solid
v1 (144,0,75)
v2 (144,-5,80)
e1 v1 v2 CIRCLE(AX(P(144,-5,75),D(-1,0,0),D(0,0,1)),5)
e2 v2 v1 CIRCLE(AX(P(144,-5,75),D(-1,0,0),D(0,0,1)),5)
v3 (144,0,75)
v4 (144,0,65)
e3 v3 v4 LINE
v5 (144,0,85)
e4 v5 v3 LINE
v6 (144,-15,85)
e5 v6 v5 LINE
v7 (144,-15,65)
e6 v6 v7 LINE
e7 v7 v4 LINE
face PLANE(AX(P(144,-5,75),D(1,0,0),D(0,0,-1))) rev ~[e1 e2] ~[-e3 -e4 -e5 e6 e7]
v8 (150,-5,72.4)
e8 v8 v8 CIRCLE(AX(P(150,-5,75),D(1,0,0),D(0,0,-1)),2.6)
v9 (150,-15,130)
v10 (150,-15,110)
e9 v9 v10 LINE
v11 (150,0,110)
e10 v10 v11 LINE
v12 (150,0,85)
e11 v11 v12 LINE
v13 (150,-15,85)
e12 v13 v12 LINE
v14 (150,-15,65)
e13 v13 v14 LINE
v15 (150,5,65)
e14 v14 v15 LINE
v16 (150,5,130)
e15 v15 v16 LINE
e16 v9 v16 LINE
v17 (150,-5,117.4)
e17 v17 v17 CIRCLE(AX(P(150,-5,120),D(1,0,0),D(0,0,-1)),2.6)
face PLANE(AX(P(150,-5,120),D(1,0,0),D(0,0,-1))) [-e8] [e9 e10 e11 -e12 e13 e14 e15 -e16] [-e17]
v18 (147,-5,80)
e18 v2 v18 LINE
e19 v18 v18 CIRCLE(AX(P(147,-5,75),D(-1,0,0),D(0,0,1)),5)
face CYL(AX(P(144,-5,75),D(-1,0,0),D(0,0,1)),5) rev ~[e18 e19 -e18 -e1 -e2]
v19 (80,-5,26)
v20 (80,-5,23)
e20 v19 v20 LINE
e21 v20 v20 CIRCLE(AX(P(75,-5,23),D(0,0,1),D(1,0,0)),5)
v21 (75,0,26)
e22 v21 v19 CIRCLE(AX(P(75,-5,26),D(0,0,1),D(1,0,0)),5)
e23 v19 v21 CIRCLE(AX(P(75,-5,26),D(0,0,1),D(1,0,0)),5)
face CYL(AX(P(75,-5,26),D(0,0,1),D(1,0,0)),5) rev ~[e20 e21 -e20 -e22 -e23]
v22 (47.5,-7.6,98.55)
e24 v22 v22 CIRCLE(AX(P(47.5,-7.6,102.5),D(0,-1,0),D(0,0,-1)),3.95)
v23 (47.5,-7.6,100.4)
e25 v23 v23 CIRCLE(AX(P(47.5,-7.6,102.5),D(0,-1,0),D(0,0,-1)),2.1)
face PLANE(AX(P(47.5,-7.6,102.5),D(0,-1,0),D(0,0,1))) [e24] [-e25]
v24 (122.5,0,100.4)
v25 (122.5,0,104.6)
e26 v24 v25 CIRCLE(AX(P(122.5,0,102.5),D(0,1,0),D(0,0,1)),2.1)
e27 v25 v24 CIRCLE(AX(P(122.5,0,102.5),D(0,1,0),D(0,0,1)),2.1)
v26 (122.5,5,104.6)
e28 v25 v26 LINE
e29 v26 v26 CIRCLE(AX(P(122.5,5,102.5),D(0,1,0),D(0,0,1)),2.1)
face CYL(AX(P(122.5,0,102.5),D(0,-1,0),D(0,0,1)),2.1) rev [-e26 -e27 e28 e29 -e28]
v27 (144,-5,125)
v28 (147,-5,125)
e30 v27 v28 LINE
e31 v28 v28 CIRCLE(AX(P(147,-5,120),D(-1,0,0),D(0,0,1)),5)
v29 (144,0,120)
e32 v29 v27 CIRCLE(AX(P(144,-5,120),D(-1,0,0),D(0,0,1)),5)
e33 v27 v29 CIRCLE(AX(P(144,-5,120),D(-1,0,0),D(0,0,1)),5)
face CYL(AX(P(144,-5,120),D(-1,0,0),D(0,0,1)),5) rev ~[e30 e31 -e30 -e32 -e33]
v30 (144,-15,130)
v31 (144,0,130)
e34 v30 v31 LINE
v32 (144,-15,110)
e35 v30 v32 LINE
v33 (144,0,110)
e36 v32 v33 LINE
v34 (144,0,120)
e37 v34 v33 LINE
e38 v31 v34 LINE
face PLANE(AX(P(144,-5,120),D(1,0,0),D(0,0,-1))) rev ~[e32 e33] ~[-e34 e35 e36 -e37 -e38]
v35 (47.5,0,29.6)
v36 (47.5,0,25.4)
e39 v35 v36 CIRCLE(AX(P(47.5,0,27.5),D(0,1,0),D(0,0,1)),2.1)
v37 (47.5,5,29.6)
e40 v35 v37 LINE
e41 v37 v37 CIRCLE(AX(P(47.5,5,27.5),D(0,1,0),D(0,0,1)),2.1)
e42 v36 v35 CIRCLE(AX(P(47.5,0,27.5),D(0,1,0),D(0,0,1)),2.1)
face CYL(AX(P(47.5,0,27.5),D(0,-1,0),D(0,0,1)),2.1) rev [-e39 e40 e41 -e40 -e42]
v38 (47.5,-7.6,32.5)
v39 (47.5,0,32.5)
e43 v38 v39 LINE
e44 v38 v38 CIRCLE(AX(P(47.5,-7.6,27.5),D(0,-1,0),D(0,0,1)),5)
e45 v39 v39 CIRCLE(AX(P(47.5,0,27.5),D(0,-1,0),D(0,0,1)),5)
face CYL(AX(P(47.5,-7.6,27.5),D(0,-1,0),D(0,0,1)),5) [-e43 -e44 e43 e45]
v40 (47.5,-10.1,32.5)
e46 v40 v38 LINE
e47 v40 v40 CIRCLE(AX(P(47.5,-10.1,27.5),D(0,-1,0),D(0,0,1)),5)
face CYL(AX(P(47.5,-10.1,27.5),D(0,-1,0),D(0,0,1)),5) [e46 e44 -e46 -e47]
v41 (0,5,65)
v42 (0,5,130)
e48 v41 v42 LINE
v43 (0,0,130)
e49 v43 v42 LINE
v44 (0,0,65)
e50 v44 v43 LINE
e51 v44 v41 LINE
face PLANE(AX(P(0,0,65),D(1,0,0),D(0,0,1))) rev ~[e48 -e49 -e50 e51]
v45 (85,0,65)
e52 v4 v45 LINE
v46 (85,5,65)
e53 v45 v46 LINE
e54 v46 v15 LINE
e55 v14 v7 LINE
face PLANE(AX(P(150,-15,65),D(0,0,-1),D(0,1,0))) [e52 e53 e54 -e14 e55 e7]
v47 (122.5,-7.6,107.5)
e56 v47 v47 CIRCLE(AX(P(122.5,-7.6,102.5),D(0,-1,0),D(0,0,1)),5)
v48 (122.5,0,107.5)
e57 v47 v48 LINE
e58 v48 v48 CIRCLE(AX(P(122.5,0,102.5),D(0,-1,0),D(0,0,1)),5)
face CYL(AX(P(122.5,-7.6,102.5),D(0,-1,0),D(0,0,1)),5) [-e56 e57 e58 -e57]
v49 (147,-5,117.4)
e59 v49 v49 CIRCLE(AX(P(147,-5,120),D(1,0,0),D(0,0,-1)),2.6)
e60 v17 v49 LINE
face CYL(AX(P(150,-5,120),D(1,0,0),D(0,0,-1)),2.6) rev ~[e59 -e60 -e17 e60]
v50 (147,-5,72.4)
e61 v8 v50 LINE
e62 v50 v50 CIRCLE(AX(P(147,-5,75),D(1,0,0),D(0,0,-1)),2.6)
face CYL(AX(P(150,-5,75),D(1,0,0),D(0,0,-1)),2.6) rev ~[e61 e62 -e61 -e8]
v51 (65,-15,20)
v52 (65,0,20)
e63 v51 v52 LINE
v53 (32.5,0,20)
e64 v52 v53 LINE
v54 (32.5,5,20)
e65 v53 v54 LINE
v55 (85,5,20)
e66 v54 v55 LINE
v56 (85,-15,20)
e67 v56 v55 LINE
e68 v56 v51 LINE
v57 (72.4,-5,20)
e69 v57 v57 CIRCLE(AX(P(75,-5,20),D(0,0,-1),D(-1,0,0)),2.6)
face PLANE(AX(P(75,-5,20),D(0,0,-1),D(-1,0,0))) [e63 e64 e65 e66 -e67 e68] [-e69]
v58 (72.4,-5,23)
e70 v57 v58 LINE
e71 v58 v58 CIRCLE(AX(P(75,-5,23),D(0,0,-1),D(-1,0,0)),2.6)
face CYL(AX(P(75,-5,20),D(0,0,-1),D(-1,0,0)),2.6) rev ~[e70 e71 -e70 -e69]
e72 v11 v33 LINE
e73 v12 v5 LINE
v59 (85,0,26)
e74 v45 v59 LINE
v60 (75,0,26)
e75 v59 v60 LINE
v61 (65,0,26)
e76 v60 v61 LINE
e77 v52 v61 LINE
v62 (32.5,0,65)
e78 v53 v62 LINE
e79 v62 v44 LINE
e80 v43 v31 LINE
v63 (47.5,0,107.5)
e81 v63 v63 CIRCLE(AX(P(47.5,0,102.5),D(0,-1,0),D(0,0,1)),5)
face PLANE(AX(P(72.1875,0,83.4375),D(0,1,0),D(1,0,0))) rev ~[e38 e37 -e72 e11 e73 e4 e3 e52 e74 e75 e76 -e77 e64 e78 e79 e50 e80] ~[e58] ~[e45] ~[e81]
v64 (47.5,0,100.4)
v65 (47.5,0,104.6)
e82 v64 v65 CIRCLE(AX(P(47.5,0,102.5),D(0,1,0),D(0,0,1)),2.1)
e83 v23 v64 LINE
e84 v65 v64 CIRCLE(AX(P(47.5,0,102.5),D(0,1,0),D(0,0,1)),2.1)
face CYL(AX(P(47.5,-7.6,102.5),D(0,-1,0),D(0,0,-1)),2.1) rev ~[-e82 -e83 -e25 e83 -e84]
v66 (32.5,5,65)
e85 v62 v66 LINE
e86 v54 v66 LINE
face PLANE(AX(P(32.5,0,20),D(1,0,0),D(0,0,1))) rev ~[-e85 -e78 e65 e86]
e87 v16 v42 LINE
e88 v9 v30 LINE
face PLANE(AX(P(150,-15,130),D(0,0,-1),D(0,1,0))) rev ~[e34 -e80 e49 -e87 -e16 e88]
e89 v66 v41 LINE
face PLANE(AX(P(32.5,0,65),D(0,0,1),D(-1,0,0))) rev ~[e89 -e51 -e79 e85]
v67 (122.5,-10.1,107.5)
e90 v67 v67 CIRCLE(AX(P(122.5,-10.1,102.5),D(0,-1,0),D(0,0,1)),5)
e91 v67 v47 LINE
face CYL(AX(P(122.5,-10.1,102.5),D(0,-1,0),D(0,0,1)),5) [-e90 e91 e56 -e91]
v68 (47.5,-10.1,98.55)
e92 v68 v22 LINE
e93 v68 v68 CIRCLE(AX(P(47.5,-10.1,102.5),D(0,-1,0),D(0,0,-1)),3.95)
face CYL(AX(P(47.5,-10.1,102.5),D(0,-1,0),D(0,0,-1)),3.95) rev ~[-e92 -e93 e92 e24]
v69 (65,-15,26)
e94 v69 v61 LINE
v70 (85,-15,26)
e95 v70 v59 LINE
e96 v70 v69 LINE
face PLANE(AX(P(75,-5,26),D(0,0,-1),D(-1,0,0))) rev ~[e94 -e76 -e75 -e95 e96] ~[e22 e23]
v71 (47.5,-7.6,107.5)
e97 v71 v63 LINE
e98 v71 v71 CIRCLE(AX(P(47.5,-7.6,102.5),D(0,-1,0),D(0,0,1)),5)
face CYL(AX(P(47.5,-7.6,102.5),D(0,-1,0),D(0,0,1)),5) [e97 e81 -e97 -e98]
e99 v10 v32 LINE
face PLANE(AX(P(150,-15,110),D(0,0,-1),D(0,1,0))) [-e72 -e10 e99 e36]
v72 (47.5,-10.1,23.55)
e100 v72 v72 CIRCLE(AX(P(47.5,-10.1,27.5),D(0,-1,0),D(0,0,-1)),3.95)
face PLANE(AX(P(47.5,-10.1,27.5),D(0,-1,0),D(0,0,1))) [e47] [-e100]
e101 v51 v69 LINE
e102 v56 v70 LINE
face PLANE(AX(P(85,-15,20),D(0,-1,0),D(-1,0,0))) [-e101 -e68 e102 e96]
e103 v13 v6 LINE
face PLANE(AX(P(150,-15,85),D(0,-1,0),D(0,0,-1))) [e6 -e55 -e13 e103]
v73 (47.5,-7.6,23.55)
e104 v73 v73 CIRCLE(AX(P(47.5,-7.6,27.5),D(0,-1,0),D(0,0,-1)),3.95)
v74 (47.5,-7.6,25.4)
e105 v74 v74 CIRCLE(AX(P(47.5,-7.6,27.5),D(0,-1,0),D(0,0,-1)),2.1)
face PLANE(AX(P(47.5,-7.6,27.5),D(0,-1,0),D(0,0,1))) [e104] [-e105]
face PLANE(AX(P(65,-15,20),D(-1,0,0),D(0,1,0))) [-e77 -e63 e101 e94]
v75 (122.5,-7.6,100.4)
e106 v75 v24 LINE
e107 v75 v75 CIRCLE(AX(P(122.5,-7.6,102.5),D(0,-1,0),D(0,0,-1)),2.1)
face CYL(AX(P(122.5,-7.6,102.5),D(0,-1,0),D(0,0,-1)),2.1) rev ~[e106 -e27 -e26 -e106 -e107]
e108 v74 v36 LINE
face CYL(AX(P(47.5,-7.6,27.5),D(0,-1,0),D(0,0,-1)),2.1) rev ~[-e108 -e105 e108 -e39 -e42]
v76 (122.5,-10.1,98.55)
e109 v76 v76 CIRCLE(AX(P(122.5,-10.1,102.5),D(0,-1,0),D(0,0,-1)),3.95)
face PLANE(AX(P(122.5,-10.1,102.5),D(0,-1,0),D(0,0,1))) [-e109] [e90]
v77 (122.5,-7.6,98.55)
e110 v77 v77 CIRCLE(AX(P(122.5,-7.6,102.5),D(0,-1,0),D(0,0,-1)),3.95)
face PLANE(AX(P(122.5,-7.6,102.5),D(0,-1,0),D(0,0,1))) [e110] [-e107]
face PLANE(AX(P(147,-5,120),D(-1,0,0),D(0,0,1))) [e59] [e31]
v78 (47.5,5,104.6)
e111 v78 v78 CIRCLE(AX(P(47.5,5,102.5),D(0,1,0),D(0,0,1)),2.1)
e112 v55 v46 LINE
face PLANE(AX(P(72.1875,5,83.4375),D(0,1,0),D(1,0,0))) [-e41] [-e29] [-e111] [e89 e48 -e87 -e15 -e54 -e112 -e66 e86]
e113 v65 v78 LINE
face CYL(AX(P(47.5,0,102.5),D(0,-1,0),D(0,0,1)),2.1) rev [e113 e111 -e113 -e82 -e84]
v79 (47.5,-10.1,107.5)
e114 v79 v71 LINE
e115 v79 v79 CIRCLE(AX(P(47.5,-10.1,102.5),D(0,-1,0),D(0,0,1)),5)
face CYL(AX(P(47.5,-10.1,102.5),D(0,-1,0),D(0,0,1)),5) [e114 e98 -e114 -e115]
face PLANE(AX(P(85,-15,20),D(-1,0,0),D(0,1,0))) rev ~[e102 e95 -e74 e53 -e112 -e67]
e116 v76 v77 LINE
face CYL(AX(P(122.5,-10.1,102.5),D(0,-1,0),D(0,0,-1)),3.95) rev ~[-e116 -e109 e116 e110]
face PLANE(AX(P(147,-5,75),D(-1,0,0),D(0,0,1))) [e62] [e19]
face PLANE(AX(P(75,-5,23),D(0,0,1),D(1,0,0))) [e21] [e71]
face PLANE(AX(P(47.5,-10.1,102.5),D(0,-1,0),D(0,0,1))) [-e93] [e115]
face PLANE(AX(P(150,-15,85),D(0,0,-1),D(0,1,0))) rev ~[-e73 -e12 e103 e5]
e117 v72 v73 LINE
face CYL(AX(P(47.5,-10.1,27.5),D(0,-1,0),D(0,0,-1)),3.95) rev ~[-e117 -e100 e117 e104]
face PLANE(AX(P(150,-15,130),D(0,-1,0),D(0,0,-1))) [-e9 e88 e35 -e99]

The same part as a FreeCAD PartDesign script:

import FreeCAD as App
import Part
import Sketcher
Q = App.Units.Quantity

doc = App.newDocument("Part")
body = doc.addObject("PartDesign::Body", "Body")

# Sketch on XZ plane
sketch1 = doc.addObject("Sketcher::SketchObject", "Sketch")
body.addObject(sketch1)
sketch1.AttachmentSupport = (doc.XZ_Plane, [""])
sketch1.MapMode = "FlatFace"
sketch1.addGeometry([
    Part.LineSegment(App.Vector(0, 65, 0), App.Vector(0, 130, 0)),  # 0
    Part.LineSegment(App.Vector(0, 130, 0), App.Vector(150, 130, 0)),  # 1
    Part.LineSegment(App.Vector(150, 130, 0), App.Vector(150, 65, 0)),  # 2
    Part.LineSegment(App.Vector(150, 65, 0), App.Vector(85, 65, 0)),  # 3
    Part.LineSegment(App.Vector(85, 65, 0), App.Vector(85, 20, 0)),  # 4
    Part.LineSegment(App.Vector(85, 20, 0), App.Vector(32.5, 20, 0)),  # 5
    Part.LineSegment(App.Vector(32.5, 20, 0), App.Vector(32.5, 65, 0)),  # 6
    Part.LineSegment(App.Vector(32.5, 65, 0), App.Vector(0, 65, 0)),  # 7
    Part.Circle(App.Vector(47.5, 102.5, 0), App.Vector(0, 0, 1), 2.1),  # 8
    Part.Circle(App.Vector(122.5, 102.5, 0), App.Vector(0, 0, 1), 2.1),  # 9
    Part.Circle(App.Vector(47.5, 27.5, 0), App.Vector(0, 0, 1), 2.1),  # 10
], False)
sketch1.addConstraint([
    Sketcher.Constraint("Coincident", 0, 2, 1, 1),
    Sketcher.Constraint("Coincident", 1, 2, 2, 1),
    Sketcher.Constraint("Coincident", 2, 2, 3, 1),
    Sketcher.Constraint("Coincident", 3, 2, 4, 1),
    Sketcher.Constraint("Coincident", 4, 2, 5, 1),
    Sketcher.Constraint("Coincident", 5, 2, 6, 1),
    Sketcher.Constraint("Coincident", 6, 2, 7, 1),
    Sketcher.Constraint("Coincident", 7, 2, 0, 1),
    Sketcher.Constraint("Vertical", 0),
    Sketcher.Constraint("Horizontal", 1),
    Sketcher.Constraint("Vertical", 2),
    Sketcher.Constraint("Horizontal", 3),
    Sketcher.Constraint("Vertical", 4),
    Sketcher.Constraint("Horizontal", 5),
    Sketcher.Constraint("Vertical", 6),
    Sketcher.Constraint("Horizontal", 7),
    Sketcher.Constraint("Equal", 8, 9),
    Sketcher.Constraint("Equal", 9, 10),
    Sketcher.Constraint("PointOnObject", 0, 2, -2),
    Sketcher.Constraint("Horizontal", 8, 3, 9, 3),
    Sketcher.Constraint("Horizontal", 3, 2, 6, 2),
    Sketcher.Constraint("Vertical", 8, 3, 10, 3),
    Sketcher.Constraint("Equal", 3, 0),
    Sketcher.Constraint("Diameter", 8, Q("4.2 mm")),
    Sketcher.Constraint("DistanceX", 1, 1, 1, 2, Q("150 mm")),
    Sketcher.Constraint("DistanceX", 3, 2, 3, 1, Q("65 mm")),
    Sketcher.Constraint("DistanceY", 4, 2, 4, 1, Q("45 mm")),
    Sketcher.Constraint("DistanceX", 5, 2, 5, 1, Q("52.5 mm")),
    Sketcher.Constraint("DistanceY", -1, 1, 0, 2, Q("130 mm")),
    Sketcher.Constraint("DistanceX", 8, 3, 9, 3, Q("75 mm")),
    Sketcher.Constraint("DistanceY", 10, 3, 8, 3, Q("75 mm")),
    Sketcher.Constraint("DistanceX", 5, 2, 10, 3, Q("15 mm")),
    Sketcher.Constraint("DistanceY", -1, 1, 8, 3, Q("102.5 mm")),
])
pad1 = doc.addObject("PartDesign::Pad", "Pad")
body.addObject(pad1)
pad1.Profile = sketch1
pad1.Length = 5
pad1.Reversed = True

# Sketch on YZ plane
sketch2 = doc.addObject("Sketcher::SketchObject", "Sketch001")
body.addObject(sketch2)
sketch2.AttachmentSupport = (doc.YZ_Plane, [""])
sketch2.MapMode = "FlatFace"
sketch2.AttachmentOffset = App.Placement(App.Vector(0, 0, 150), App.Rotation())
sketch2.addGeometry([
    Part.LineSegment(App.Vector(5, 85, 0), App.Vector(-15, 85, 0)),  # 0
    Part.LineSegment(App.Vector(-15, 85, 0), App.Vector(-15, 65, 0)),  # 1
    Part.LineSegment(App.Vector(-15, 65, 0), App.Vector(5, 65, 0)),  # 2
    Part.LineSegment(App.Vector(5, 65, 0), App.Vector(5, 85, 0)),  # 3
    Part.Circle(App.Vector(-5, 75, 0), App.Vector(0, 0, 1), 2.6),  # 4
], False)
sketch2.addConstraint([
    Sketcher.Constraint("Coincident", 0, 2, 1, 1),
    Sketcher.Constraint("Coincident", 1, 2, 2, 1),
    Sketcher.Constraint("Coincident", 2, 2, 3, 1),
    Sketcher.Constraint("Coincident", 3, 2, 0, 1),
    Sketcher.Constraint("Horizontal", 0),
    Sketcher.Constraint("Vertical", 1),
    Sketcher.Constraint("Horizontal", 2),
    Sketcher.Constraint("Vertical", 3),
    Sketcher.Constraint("Equal", 2, 1),
    Sketcher.Constraint("Diameter", 4, Q("5.2 mm")),
    Sketcher.Constraint("DistanceX", 0, 2, 0, 1, Q("20 mm")),
    Sketcher.Constraint("DistanceX", 4, 3, -1, 1, Q("5 mm")),
    Sketcher.Constraint("DistanceY", -1, 1, 4, 3, Q("75 mm")),
    Sketcher.Constraint("DistanceX", 0, 2, -1, 1, Q("15 mm")),
    Sketcher.Constraint("DistanceY", -1, 1, 0, 2, Q("85 mm")),
])
pad2 = doc.addObject("PartDesign::Pad", "Pad001")
body.addObject(pad2)
pad2.Profile = sketch2
pad2.Length = 6
pad2.Reversed = True

# Sketch on YZ plane
sketch3 = doc.addObject("Sketcher::SketchObject", "Sketch002")
body.addObject(sketch3)
sketch3.AttachmentSupport = (doc.YZ_Plane, [""])
sketch3.MapMode = "FlatFace"
sketch3.AttachmentOffset = App.Placement(App.Vector(0, 0, 144), App.Rotation())
sketch3.addGeometry(Part.Circle(App.Vector(-5, 75, 0), App.Vector(0, 0, 1), 5), False)
sketch3.addConstraint([
    Sketcher.Constraint("Diameter", 0, Q("10 mm")),
    Sketcher.Constraint("DistanceX", 0, 3, -1, 1, Q("5 mm")),
    Sketcher.Constraint("DistanceY", -1, 1, 0, 3, Q("75 mm")),
])
pocket1 = doc.addObject("PartDesign::Pocket", "Pocket")
body.addObject(pocket1)
pocket1.Profile = sketch3
pocket1.Length = 3
pocket1.Reversed = True

# Sketch on XY plane
sketch4 = doc.addObject("Sketcher::SketchObject", "Sketch003")
body.addObject(sketch4)
sketch4.AttachmentSupport = (doc.XY_Plane, [""])
sketch4.MapMode = "FlatFace"
sketch4.AttachmentOffset = App.Placement(App.Vector(0, 0, 20), App.Rotation())
sketch4.addGeometry([
    Part.LineSegment(App.Vector(85, 5, 0), App.Vector(85, -15, 0)),  # 0
    Part.LineSegment(App.Vector(85, -15, 0), App.Vector(65, -15, 0)),  # 1
    Part.LineSegment(App.Vector(65, -15, 0), App.Vector(65, 5, 0)),  # 2
    Part.LineSegment(App.Vector(65, 5, 0), App.Vector(85, 5, 0)),  # 3
    Part.Circle(App.Vector(75, -5, 0), App.Vector(0, 0, 1), 2.6),  # 4
], False)
sketch4.addConstraint([
    Sketcher.Constraint("Coincident", 0, 2, 1, 1),
    Sketcher.Constraint("Coincident", 1, 2, 2, 1),
    Sketcher.Constraint("Coincident", 2, 2, 3, 1),
    Sketcher.Constraint("Coincident", 3, 2, 0, 1),
    Sketcher.Constraint("Vertical", 0),
    Sketcher.Constraint("Horizontal", 1),
    Sketcher.Constraint("Vertical", 2),
    Sketcher.Constraint("Horizontal", 3),
    Sketcher.Constraint("Equal", 3, 0),
    Sketcher.Constraint("Diameter", 4, Q("5.2 mm")),
    Sketcher.Constraint("DistanceX", 1, 2, 1, 1, Q("20 mm")),
    Sketcher.Constraint("DistanceX", -1, 1, 4, 3, Q("75 mm")),
    Sketcher.Constraint("DistanceY", 4, 3, -1, 1, Q("5 mm")),
    Sketcher.Constraint("DistanceX", -1, 1, 0, 2, Q("85 mm")),
    Sketcher.Constraint("DistanceY", 0, 2, -1, 1, Q("15 mm")),
])
pad3 = doc.addObject("PartDesign::Pad", "Pad002")
body.addObject(pad3)
pad3.Profile = sketch4
pad3.Length = 6

# Sketch on XY plane
sketch5 = doc.addObject("Sketcher::SketchObject", "Sketch004")
body.addObject(sketch5)
sketch5.AttachmentSupport = (doc.XY_Plane, [""])
sketch5.MapMode = "FlatFace"
sketch5.AttachmentOffset = App.Placement(App.Vector(0, 0, 26), App.Rotation())
sketch5.addGeometry(Part.Circle(App.Vector(75, -5, 0), App.Vector(0, 0, 1), 5), False)
sketch5.addConstraint([
    Sketcher.Constraint("Diameter", 0, Q("10 mm")),
    Sketcher.Constraint("DistanceX", -1, 1, 0, 3, Q("75 mm")),
    Sketcher.Constraint("DistanceY", 0, 3, -1, 1, Q("5 mm")),
])
pocket2 = doc.addObject("PartDesign::Pocket", "Pocket001")
body.addObject(pocket2)
pocket2.Profile = sketch5
pocket2.Length = 3

# Sketch on YZ plane
sketch6 = doc.addObject("Sketcher::SketchObject", "Sketch005")
body.addObject(sketch6)
sketch6.AttachmentSupport = (doc.YZ_Plane, [""])
sketch6.MapMode = "FlatFace"
sketch6.AttachmentOffset = App.Placement(App.Vector(0, 0, 150), App.Rotation())
sketch6.addGeometry([
    Part.LineSegment(App.Vector(5, 130, 0), App.Vector(-15, 130, 0)),  # 0
    Part.LineSegment(App.Vector(-15, 130, 0), App.Vector(-15, 110, 0)),  # 1
    Part.LineSegment(App.Vector(-15, 110, 0), App.Vector(5, 110, 0)),  # 2
    Part.LineSegment(App.Vector(5, 110, 0), App.Vector(5, 130, 0)),  # 3
    Part.Circle(App.Vector(-5, 120, 0), App.Vector(0, 0, 1), 2.6),  # 4
], False)
sketch6.addConstraint([
    Sketcher.Constraint("Coincident", 0, 2, 1, 1),
    Sketcher.Constraint("Coincident", 1, 2, 2, 1),
    Sketcher.Constraint("Coincident", 2, 2, 3, 1),
    Sketcher.Constraint("Coincident", 3, 2, 0, 1),
    Sketcher.Constraint("Horizontal", 0),
    Sketcher.Constraint("Vertical", 1),
    Sketcher.Constraint("Horizontal", 2),
    Sketcher.Constraint("Vertical", 3),
    Sketcher.Constraint("Equal", 2, 1),
    Sketcher.Constraint("Diameter", 4, Q("5.2 mm")),
    Sketcher.Constraint("DistanceX", 0, 2, 0, 1, Q("20 mm")),
    Sketcher.Constraint("DistanceX", 4, 3, -1, 1, Q("5 mm")),
    Sketcher.Constraint("DistanceY", -1, 1, 4, 3, Q("120 mm")),
    Sketcher.Constraint("DistanceX", 0, 2, -1, 1, Q("15 mm")),
    Sketcher.Constraint("DistanceY", -1, 1, 0, 2, Q("130 mm")),
])
pad4 = doc.addObject("PartDesign::Pad", "Pad003")
body.addObject(pad4)
pad4.Profile = sketch6
pad4.Length = 6
pad4.Reversed = True

# Sketch on YZ plane
sketch7 = doc.addObject("Sketcher::SketchObject", "Sketch006")
body.addObject(sketch7)
sketch7.AttachmentSupport = (doc.YZ_Plane, [""])
sketch7.MapMode = "FlatFace"
sketch7.AttachmentOffset = App.Placement(App.Vector(0, 0, 144), App.Rotation())
sketch7.addGeometry(Part.Circle(App.Vector(-5, 120, 0), App.Vector(0, 0, 1), 5), False)
sketch7.addConstraint([
    Sketcher.Constraint("Diameter", 0, Q("10 mm")),
    Sketcher.Constraint("DistanceX", 0, 3, -1, 1, Q("5 mm")),
    Sketcher.Constraint("DistanceY", -1, 1, 0, 3, Q("120 mm")),
])
pocket3 = doc.addObject("PartDesign::Pocket", "Pocket002")
body.addObject(pocket3)
pocket3.Profile = sketch7
pocket3.Length = 3
pocket3.Reversed = True

# Sketch on XZ plane
sketch8 = doc.addObject("Sketcher::SketchObject", "Sketch007")
body.addObject(sketch8)
sketch8.AttachmentSupport = (doc.XZ_Plane, [""])
sketch8.MapMode = "FlatFace"
sketch8.AttachmentOffset = App.Placement(App.Vector(0, 0, 7.6), App.Rotation())
sketch8.addGeometry([
    Part.Circle(App.Vector(47.5, 102.5, 0), App.Vector(0, 0, 1), 5),  # 0
    Part.Circle(App.Vector(47.5, 102.5, 0), App.Vector(0, 0, 1), 2.1),  # 1
    Part.Circle(App.Vector(122.5, 102.5, 0), App.Vector(0, 0, 1), 5),  # 2
    Part.Circle(App.Vector(122.5, 102.5, 0), App.Vector(0, 0, 1), 2.1),  # 3
    Part.Circle(App.Vector(47.5, 27.5, 0), App.Vector(0, 0, 1), 5),  # 4
    Part.Circle(App.Vector(47.5, 27.5, 0), App.Vector(0, 0, 1), 2.1),  # 5
], False)
sketch8.addConstraint([
    Sketcher.Constraint("Coincident", 1, 3, 0, 3),
    Sketcher.Constraint("Coincident", 3, 3, 2, 3),
    Sketcher.Constraint("Coincident", 5, 3, 4, 3),
    Sketcher.Constraint("Equal", 0, 2),
    Sketcher.Constraint("Equal", 1, 3),
    Sketcher.Constraint("Equal", 2, 4),
    Sketcher.Constraint("Equal", 3, 5),
    Sketcher.Constraint("Horizontal", 1, 3, 2, 3),
    Sketcher.Constraint("Vertical", 1, 3, 4, 3),
    Sketcher.Constraint("Diameter", 0, Q("10 mm")),
    Sketcher.Constraint("Diameter", 1, Q("4.2 mm")),
    Sketcher.Constraint("DistanceX", 0, 3, 2, 3, Q("75 mm")),
    Sketcher.Constraint("DistanceY", 4, 3, 0, 3, Q("75 mm")),
    Sketcher.Constraint("DistanceX", -1, 1, 0, 3, Q("47.5 mm")),
    Sketcher.Constraint("DistanceY", -1, 1, 0, 3, Q("102.5 mm")),
])
pad5 = doc.addObject("PartDesign::Pad", "Pad004")
body.addObject(pad5)
pad5.Profile = sketch8
pad5.Length = 7.6
pad5.Reversed = True

# Sketch on XZ plane
sketch9 = doc.addObject("Sketcher::SketchObject", "Sketch008")
body.addObject(sketch9)
sketch9.AttachmentSupport = (doc.XZ_Plane, [""])
sketch9.MapMode = "FlatFace"
sketch9.AttachmentOffset = App.Placement(App.Vector(0, 0, 10.1), App.Rotation())
sketch9.addGeometry([
    Part.Circle(App.Vector(47.5, 102.5, 0), App.Vector(0, 0, 1), 5),  # 0
    Part.Circle(App.Vector(47.5, 102.5, 0), App.Vector(0, 0, 1), 4),  # 1
    Part.Circle(App.Vector(47.5, 27.5, 0), App.Vector(0, 0, 1), 5),  # 2
    Part.Circle(App.Vector(47.5, 27.5, 0), App.Vector(0, 0, 1), 4),  # 3
    Part.Circle(App.Vector(122.5, 102.5, 0), App.Vector(0, 0, 1), 5),  # 4
    Part.Circle(App.Vector(122.5, 102.5, 0), App.Vector(0, 0, 1), 4),  # 5
], False)
sketch9.addConstraint([
    Sketcher.Constraint("Coincident", 1, 3, 0, 3),
    Sketcher.Constraint("Coincident", 3, 3, 2, 3),
    Sketcher.Constraint("Coincident", 5, 3, 4, 3),
    Sketcher.Constraint("Equal", 0, 2),
    Sketcher.Constraint("Equal", 1, 3),
    Sketcher.Constraint("Equal", 2, 4),
    Sketcher.Constraint("Equal", 3, 5),
    Sketcher.Constraint("Horizontal", 1, 3, 4, 3),
    Sketcher.Constraint("Vertical", 1, 3, 2, 3),
    Sketcher.Constraint("Diameter", 0, Q("10 mm")),
    Sketcher.Constraint("Diameter", 1, Q("7.9 mm")),
    Sketcher.Constraint("DistanceY", 2, 3, 0, 3, Q("75 mm")),
    Sketcher.Constraint("DistanceX", 0, 3, 4, 3, Q("75 mm")),
    Sketcher.Constraint("DistanceX", -1, 1, 0, 3, Q("47.5 mm")),
    Sketcher.Constraint("DistanceY", -1, 1, 0, 3, Q("102.5 mm")),
])
pad6 = doc.addObject("PartDesign::Pad", "Pad005")
body.addObject(pad6)
pad6.Profile = sketch9
pad6.Length = 2.5
pad6.Reversed = True

doc.recompute()
